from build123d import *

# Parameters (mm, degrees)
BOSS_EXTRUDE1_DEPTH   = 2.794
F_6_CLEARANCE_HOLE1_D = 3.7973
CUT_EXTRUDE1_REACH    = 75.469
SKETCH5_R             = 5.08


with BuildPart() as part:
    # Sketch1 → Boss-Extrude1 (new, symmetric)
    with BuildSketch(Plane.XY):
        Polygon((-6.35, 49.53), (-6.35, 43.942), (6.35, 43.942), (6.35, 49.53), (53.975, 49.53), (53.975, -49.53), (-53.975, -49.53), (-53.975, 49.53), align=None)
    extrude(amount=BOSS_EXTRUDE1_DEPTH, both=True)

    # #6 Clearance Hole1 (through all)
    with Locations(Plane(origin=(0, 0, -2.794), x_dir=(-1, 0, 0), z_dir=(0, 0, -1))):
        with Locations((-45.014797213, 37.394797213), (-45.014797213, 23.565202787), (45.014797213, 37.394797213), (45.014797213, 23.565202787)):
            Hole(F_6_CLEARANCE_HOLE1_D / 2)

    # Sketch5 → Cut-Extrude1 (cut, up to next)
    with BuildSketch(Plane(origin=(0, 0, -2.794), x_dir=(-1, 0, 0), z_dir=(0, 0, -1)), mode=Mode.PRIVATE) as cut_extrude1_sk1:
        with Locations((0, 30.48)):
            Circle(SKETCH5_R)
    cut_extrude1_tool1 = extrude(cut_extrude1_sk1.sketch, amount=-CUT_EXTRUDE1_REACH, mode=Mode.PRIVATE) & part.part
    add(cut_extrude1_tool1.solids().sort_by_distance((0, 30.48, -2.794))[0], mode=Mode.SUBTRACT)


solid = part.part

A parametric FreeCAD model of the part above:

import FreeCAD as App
import Part
import Sketcher
from FreeCAD import Vector
Q = App.Units.Quantity

doc = App.newDocument("Part")
body = doc.addObject("PartDesign::Body", "Body")

# Sketch on XY plane
sketch1 = doc.addObject("Sketcher::SketchObject", "Sketch")
body.addObject(sketch1)
sketch1.AttachmentSupport = (doc.XY_Plane, [""])
sketch1.MapMode = "FlatFace"
sketch1.addGeometry(Part.LineSegment(Vector(-6.35, 43.942, 0), Vector(-6.35, 49.53, 0)), False)
sketch1.addGeometry(Part.LineSegment(Vector(-6.35, 49.53, 0), Vector(-53.975, 49.53, 0)), False)
sketch1.addGeometry(Part.LineSegment(Vector(-53.975, 49.53, 0), Vector(-53.975, -49.53, 0)), False)
sketch1.addGeometry(Part.LineSegment(Vector(-53.975, -49.53, 0), Vector(53.975, -49.53, 0)), False)
sketch1.addGeometry(Part.LineSegment(Vector(53.975, -49.53, 0), Vector(53.975, 49.53, 0)), False)
sketch1.addGeometry(Part.LineSegment(Vector(53.975, 49.53, 0), Vector(6.35, 49.53, 0)), False)
sketch1.addGeometry(Part.LineSegment(Vector(6.35, 49.53, 0), Vector(6.35, 43.942, 0)), False)
sketch1.addGeometry(Part.LineSegment(Vector(6.35, 43.942, 0), Vector(-6.35, 43.942, 0)), False)
sketch1.addConstraint(Sketcher.Constraint("Coincident", 0, 2, 1, 1))
sketch1.addConstraint(Sketcher.Constraint("Coincident", 1, 2, 2, 1))
sketch1.addConstraint(Sketcher.Constraint("Coincident", 2, 2, 3, 1))
sketch1.addConstraint(Sketcher.Constraint("Coincident", 3, 2, 4, 1))
sketch1.addConstraint(Sketcher.Constraint("Coincident", 4, 2, 5, 1))
sketch1.addConstraint(Sketcher.Constraint("Coincident", 5, 2, 6, 1))
sketch1.addConstraint(Sketcher.Constraint("Coincident", 6, 2, 7, 1))
sketch1.addConstraint(Sketcher.Constraint("Coincident", 7, 2, 0, 1))
sketch1.addConstraint(Sketcher.Constraint("Vertical", 0))
sketch1.addConstraint(Sketcher.Constraint("Horizontal", 1))
sketch1.addConstraint(Sketcher.Constraint("Vertical", 2))
sketch1.addConstraint(Sketcher.Constraint("Horizontal", 3))
sketch1.addConstraint(Sketcher.Constraint("Vertical", 4))
sketch1.addConstraint(Sketcher.Constraint("Horizontal", 5))
sketch1.addConstraint(Sketcher.Constraint("Vertical", 6))
sketch1.addConstraint(Sketcher.Constraint("Horizontal", 7))
sketch1.addConstraint(Sketcher.Constraint("Symmetric", 1, 2, 3, 2, -1, 1))
sketch1.addConstraint(Sketcher.Constraint("Symmetric", 0, 2, 5, 2, -2))
sketch1.addConstraint(Sketcher.Constraint("DistanceX", 7, 2, 7, 1, Q("0.5 in")))
sketch1.addConstraint(Sketcher.Constraint("DistanceY", 2, 2, 2, 1, Q("3.9 in")))
sketch1.addConstraint(Sketcher.Constraint("DistanceX", 3, 1, 3, 2, Q("4.25 in")))
sketch1.addConstraint(Sketcher.Constraint("DistanceY", 0, 1, 0, 2, Q("0.22 in")))
pad1 = doc.addObject("PartDesign::Pad", "Pad")
body.addObject(pad1)
pad1.Profile = sketch1
pad1.Length = Q("0.22 in")
pad1.Midplane = True

# Sketch on XY plane
sketch2 = doc.addObject("Sketcher::SketchObject", "Sketch001")
body.addObject(sketch2)
sketch2.AttachmentSupport = (doc.XY_Plane, [""])
sketch2.MapMode = "FlatFace"
sketch2.AttachmentOffset = App.Placement(Vector(0, 0, -0.11 * 25.4), App.Rotation())
sketch2.addGeometry(Part.Circle(Vector(45.014797, 37.394797, 0), Vector(0, 0, 1), 1.89865), False)
sketch2.addGeometry(Part.Circle(Vector(45.014797, 23.565203, 0), Vector(0, 0, 1), 1.89865), False)
sketch2.addGeometry(Part.Circle(Vector(-45.014797, 37.394797, 0), Vector(0, 0, 1), 1.89865), False)
sketch2.addGeometry(Part.Circle(Vector(-45.014797, 23.565203, 0), Vector(0, 0, 1), 1.89865), False)
sketch2.addConstraint(Sketcher.Constraint("Equal", 0, 1))
sketch2.addConstraint(Sketcher.Constraint("Equal", 1, 2))
sketch2.addConstraint(Sketcher.Constraint("Equal", 2, 3))
sketch2.addConstraint(Sketcher.Constraint("Symmetric", 0, 3, 2, 3, -2))
sketch2.addConstraint(Sketcher.Constraint("Symmetric", 1, 3, 3, 3, -2))
sketch2.addConstraint(Sketcher.Constraint("Vertical", 0, 3, 1, 3))
sketch2.addConstraint(Sketcher.Constraint("Diameter", 0, Q("0.1495 in")))
sketch2.addConstraint(Sketcher.Constraint("DistanceX", -1, 1, 0, 3, Q("45.014797 mm")))
sketch2.addConstraint(Sketcher.Constraint("DistanceY", -1, 1, 0, 3, Q("37.394797 mm")))
sketch2.addConstraint(Sketcher.Constraint("DistanceY", -1, 1, 1, 3, Q("23.565203 mm")))
doc.recompute()
hole = doc.addObject("PartDesign::Hole", "Hole")
body.addObject(hole)
hole.Profile = sketch2
hole.ThreadType = "None"
hole.Diameter = Q("0.1495 in")
hole.DepthType = "ThroughAll"
hole.Reversed = True

# Sketch on XY plane
sketch3 = doc.addObject("Sketcher::SketchObject", "Sketch002")
body.addObject(sketch3)
sketch3.AttachmentSupport = (doc.XY_Plane, [""])
sketch3.MapMode = "FlatFace"
sketch3.AttachmentOffset = App.Placement(Vector(0, 0, -0.11 * 25.4), App.Rotation())
sketch3.addGeometry(Part.Circle(Vector(0, 30.48, 0), Vector(0, 0, 1), 5.08), False)
sketch3.addConstraint(Sketcher.Constraint("PointOnObject", 0, 3, -2))
sketch3.addConstraint(Sketcher.Constraint("Diameter", 0, Q("0.4 in")))
sketch3.addConstraint(Sketcher.Constraint("DistanceY", -1, 1, 0, 3, Q("1.2 in")))
pocket1 = doc.addObject("PartDesign::Pocket", "Pocket")
body.addObject(pocket1)
pocket1.Profile = sketch3
pocket1.Type = "UpToFirst"
pocket1.Reversed = True

doc.recompute()
